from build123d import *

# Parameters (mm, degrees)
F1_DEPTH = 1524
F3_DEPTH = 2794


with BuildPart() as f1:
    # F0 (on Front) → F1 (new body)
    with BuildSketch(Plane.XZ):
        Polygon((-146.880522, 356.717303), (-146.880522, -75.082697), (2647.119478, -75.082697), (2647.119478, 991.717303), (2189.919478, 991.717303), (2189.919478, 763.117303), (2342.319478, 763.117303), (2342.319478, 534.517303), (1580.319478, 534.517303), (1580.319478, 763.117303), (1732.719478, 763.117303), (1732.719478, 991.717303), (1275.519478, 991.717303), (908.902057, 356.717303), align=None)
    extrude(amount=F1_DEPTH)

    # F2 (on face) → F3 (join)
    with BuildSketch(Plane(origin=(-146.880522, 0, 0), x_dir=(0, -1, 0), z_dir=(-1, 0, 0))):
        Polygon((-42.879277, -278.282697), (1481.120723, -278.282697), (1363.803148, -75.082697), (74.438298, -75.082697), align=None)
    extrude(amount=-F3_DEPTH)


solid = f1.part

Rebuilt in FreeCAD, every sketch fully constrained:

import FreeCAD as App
import Part
import Sketcher
Q = App.Units.Quantity

doc = App.newDocument("Part")
body = doc.addObject("PartDesign::Body", "Body")

# Sketch on XZ plane
sketch1 = body.newObject("Sketcher::SketchObject", "Sketch")
sketch1.AttachmentSupport = (doc.getObject("XZ_Plane"), [""])
sketch1.MapMode = "FlatFace"
sketch1.addGeometry([
    Part.LineSegment(App.Vector(-147, 357, 0), App.Vector(-147, -75, 0)),  # 0
    Part.LineSegment(App.Vector(-147, -75, 0), App.Vector(2647, -75, 0)),  # 1
    Part.LineSegment(App.Vector(2647, -75, 0), App.Vector(2647, 992, 0)),  # 2
    Part.LineSegment(App.Vector(2647, 992, 0), App.Vector(2190, 992, 0)),  # 3
    Part.LineSegment(App.Vector(2190, 992, 0), App.Vector(2190, 763, 0)),  # 4
    Part.LineSegment(App.Vector(2190, 763, 0), App.Vector(2342, 763, 0)),  # 5
    Part.LineSegment(App.Vector(2342, 763, 0), App.Vector(2342, 535, 0)),  # 6
    Part.LineSegment(App.Vector(2342, 535, 0), App.Vector(1580, 535, 0)),  # 7
    Part.LineSegment(App.Vector(1580, 535, 0), App.Vector(1580, 763, 0)),  # 8
    Part.LineSegment(App.Vector(1580, 763, 0), App.Vector(1733, 763, 0)),  # 9
    Part.LineSegment(App.Vector(1733, 763, 0), App.Vector(1733, 992, 0)),  # 10
    Part.LineSegment(App.Vector(1733, 992, 0), App.Vector(1276, 992, 0)),  # 11
    Part.LineSegment(App.Vector(1276, 992, 0), App.Vector(909, 357, 0)),  # 12
    Part.LineSegment(App.Vector(909, 357, 0), App.Vector(-147, 357, 0)),  # 13
], False)
sketch1.addConstraint([
    Sketcher.Constraint("Coincident", 0, 2, 1, 1),
    Sketcher.Constraint("Coincident", 1, 2, 2, 1),
    Sketcher.Constraint("Coincident", 2, 2, 3, 1),
    Sketcher.Constraint("Coincident", 3, 2, 4, 1),
    Sketcher.Constraint("Coincident", 4, 2, 5, 1),
    Sketcher.Constraint("Coincident", 5, 2, 6, 1),
    Sketcher.Constraint("Coincident", 6, 2, 7, 1),
    Sketcher.Constraint("Coincident", 7, 2, 8, 1),
    Sketcher.Constraint("Coincident", 8, 2, 9, 1),
    Sketcher.Constraint("Coincident", 9, 2, 10, 1),
    Sketcher.Constraint("Coincident", 10, 2, 11, 1),
    Sketcher.Constraint("Coincident", 11, 2, 12, 1),
    Sketcher.Constraint("Coincident", 12, 2, 13, 1),
    Sketcher.Constraint("Coincident", 13, 2, 0, 1),
    Sketcher.Constraint("Vertical", 0),
    Sketcher.Constraint("Horizontal", 1),
    Sketcher.Constraint("Vertical", 2),
    Sketcher.Constraint("Horizontal", 3),
    Sketcher.Constraint("Vertical", 4),
    Sketcher.Constraint("Horizontal", 5),
    Sketcher.Constraint("Vertical", 6),
    Sketcher.Constraint("Horizontal", 7),
    Sketcher.Constraint("Vertical", 8),
    Sketcher.Constraint("Horizontal", 9),
    Sketcher.Constraint("Vertical", 10),
    Sketcher.Constraint("Horizontal", 11),
    Sketcher.Constraint("Horizontal", 13),
    Sketcher.Constraint("Horizontal", 5, 2, 8, 2),
    Sketcher.Constraint("Horizontal", 3, 2, 10, 2),
    Sketcher.Constraint("Equal", 5, 9),
    Sketcher.Constraint("Equal", 3, 11),
    Sketcher.Constraint("Equal", 4, 6),
    Sketcher.Constraint("DistanceX", 1, 1, 1, 2, Q("110 in")),
    Sketcher.Constraint("DistanceX", 3, 2, 3, 1, Q("18 in")),
    Sketcher.Constraint("DistanceX", 5, 1, 5, 2, Q("6 in")),
    Sketcher.Constraint("DistanceX", 7, 2, 7, 1, Q("30 in")),
    Sketcher.Constraint("DistanceY", 0, 2, 0, 1, Q("17 in")),
    Sketcher.Constraint("DistanceY", 2, 1, 2, 2, Q("42 in")),
    Sketcher.Constraint("DistanceY", 4, 2, 4, 1, Q("9 in")),
    Sketcher.Constraint("Angle", 12, Q("-120 deg")),
    Sketcher.Constraint("DistanceX", -1, 1, 1, 2, 2647.119478),
    Sketcher.Constraint("DistanceY", 0, 2, -1, 1, 75.082697),
])
pad1 = body.newObject("PartDesign::Pad", "Pad")
pad1.Profile = sketch1
pad1.Length = Q("60 in")

# Sketch on YZ plane
sketch2 = body.newObject("Sketcher::SketchObject", "Sketch001")
sketch2.AttachmentSupport = (doc.getObject("YZ_Plane"), [""])
sketch2.MapMode = "FlatFace"
sketch2.AttachmentOffset = App.Placement(App.Vector(0, 0, -146.880522), App.Rotation())
sketch2.addGeometry([
    Part.LineSegment(App.Vector(43, -278, 0), App.Vector(-1481, -278, 0)),
    Part.LineSegment(App.Vector(-1481, -278, 0), App.Vector(-1364, -75, 0)),
    Part.LineSegment(App.Vector(-1364, -75, 0), App.Vector(-74, -75, 0)),
    Part.LineSegment(App.Vector(-74, -75, 0), App.Vector(43, -278, 0)),
], False)
sketch2.addConstraint([
    Sketcher.Constraint("Coincident", 0, 2, 1, 1),
    Sketcher.Constraint("Coincident", 1, 2, 2, 1),
    Sketcher.Constraint("Coincident", 2, 2, 3, 1),
    Sketcher.Constraint("Coincident", 3, 2, 0, 1),
    Sketcher.Constraint("Horizontal", 0),
    Sketcher.Constraint("Horizontal", 2),
    Sketcher.Constraint("Equal", 1, 3),
    Sketcher.Constraint("DistanceX", 0, 2, 0, 1, Q("60 in")),
    Sketcher.Constraint("Angle", 1, Q("60 deg")),
    Sketcher.Constraint("DistanceY", 0, 2, 1, 2, Q("8 in")),
    Sketcher.Constraint("DistanceX", 2, 2, -1, 1, 74.438298),
    Sketcher.Constraint("DistanceY", 0, 2, -1, 1, 278.282697),
])
pad2 = body.newObject("PartDesign::Pad", "Pad001")
pad2.Profile = sketch2
pad2.Length = Q("110 in")

doc.recompute()
